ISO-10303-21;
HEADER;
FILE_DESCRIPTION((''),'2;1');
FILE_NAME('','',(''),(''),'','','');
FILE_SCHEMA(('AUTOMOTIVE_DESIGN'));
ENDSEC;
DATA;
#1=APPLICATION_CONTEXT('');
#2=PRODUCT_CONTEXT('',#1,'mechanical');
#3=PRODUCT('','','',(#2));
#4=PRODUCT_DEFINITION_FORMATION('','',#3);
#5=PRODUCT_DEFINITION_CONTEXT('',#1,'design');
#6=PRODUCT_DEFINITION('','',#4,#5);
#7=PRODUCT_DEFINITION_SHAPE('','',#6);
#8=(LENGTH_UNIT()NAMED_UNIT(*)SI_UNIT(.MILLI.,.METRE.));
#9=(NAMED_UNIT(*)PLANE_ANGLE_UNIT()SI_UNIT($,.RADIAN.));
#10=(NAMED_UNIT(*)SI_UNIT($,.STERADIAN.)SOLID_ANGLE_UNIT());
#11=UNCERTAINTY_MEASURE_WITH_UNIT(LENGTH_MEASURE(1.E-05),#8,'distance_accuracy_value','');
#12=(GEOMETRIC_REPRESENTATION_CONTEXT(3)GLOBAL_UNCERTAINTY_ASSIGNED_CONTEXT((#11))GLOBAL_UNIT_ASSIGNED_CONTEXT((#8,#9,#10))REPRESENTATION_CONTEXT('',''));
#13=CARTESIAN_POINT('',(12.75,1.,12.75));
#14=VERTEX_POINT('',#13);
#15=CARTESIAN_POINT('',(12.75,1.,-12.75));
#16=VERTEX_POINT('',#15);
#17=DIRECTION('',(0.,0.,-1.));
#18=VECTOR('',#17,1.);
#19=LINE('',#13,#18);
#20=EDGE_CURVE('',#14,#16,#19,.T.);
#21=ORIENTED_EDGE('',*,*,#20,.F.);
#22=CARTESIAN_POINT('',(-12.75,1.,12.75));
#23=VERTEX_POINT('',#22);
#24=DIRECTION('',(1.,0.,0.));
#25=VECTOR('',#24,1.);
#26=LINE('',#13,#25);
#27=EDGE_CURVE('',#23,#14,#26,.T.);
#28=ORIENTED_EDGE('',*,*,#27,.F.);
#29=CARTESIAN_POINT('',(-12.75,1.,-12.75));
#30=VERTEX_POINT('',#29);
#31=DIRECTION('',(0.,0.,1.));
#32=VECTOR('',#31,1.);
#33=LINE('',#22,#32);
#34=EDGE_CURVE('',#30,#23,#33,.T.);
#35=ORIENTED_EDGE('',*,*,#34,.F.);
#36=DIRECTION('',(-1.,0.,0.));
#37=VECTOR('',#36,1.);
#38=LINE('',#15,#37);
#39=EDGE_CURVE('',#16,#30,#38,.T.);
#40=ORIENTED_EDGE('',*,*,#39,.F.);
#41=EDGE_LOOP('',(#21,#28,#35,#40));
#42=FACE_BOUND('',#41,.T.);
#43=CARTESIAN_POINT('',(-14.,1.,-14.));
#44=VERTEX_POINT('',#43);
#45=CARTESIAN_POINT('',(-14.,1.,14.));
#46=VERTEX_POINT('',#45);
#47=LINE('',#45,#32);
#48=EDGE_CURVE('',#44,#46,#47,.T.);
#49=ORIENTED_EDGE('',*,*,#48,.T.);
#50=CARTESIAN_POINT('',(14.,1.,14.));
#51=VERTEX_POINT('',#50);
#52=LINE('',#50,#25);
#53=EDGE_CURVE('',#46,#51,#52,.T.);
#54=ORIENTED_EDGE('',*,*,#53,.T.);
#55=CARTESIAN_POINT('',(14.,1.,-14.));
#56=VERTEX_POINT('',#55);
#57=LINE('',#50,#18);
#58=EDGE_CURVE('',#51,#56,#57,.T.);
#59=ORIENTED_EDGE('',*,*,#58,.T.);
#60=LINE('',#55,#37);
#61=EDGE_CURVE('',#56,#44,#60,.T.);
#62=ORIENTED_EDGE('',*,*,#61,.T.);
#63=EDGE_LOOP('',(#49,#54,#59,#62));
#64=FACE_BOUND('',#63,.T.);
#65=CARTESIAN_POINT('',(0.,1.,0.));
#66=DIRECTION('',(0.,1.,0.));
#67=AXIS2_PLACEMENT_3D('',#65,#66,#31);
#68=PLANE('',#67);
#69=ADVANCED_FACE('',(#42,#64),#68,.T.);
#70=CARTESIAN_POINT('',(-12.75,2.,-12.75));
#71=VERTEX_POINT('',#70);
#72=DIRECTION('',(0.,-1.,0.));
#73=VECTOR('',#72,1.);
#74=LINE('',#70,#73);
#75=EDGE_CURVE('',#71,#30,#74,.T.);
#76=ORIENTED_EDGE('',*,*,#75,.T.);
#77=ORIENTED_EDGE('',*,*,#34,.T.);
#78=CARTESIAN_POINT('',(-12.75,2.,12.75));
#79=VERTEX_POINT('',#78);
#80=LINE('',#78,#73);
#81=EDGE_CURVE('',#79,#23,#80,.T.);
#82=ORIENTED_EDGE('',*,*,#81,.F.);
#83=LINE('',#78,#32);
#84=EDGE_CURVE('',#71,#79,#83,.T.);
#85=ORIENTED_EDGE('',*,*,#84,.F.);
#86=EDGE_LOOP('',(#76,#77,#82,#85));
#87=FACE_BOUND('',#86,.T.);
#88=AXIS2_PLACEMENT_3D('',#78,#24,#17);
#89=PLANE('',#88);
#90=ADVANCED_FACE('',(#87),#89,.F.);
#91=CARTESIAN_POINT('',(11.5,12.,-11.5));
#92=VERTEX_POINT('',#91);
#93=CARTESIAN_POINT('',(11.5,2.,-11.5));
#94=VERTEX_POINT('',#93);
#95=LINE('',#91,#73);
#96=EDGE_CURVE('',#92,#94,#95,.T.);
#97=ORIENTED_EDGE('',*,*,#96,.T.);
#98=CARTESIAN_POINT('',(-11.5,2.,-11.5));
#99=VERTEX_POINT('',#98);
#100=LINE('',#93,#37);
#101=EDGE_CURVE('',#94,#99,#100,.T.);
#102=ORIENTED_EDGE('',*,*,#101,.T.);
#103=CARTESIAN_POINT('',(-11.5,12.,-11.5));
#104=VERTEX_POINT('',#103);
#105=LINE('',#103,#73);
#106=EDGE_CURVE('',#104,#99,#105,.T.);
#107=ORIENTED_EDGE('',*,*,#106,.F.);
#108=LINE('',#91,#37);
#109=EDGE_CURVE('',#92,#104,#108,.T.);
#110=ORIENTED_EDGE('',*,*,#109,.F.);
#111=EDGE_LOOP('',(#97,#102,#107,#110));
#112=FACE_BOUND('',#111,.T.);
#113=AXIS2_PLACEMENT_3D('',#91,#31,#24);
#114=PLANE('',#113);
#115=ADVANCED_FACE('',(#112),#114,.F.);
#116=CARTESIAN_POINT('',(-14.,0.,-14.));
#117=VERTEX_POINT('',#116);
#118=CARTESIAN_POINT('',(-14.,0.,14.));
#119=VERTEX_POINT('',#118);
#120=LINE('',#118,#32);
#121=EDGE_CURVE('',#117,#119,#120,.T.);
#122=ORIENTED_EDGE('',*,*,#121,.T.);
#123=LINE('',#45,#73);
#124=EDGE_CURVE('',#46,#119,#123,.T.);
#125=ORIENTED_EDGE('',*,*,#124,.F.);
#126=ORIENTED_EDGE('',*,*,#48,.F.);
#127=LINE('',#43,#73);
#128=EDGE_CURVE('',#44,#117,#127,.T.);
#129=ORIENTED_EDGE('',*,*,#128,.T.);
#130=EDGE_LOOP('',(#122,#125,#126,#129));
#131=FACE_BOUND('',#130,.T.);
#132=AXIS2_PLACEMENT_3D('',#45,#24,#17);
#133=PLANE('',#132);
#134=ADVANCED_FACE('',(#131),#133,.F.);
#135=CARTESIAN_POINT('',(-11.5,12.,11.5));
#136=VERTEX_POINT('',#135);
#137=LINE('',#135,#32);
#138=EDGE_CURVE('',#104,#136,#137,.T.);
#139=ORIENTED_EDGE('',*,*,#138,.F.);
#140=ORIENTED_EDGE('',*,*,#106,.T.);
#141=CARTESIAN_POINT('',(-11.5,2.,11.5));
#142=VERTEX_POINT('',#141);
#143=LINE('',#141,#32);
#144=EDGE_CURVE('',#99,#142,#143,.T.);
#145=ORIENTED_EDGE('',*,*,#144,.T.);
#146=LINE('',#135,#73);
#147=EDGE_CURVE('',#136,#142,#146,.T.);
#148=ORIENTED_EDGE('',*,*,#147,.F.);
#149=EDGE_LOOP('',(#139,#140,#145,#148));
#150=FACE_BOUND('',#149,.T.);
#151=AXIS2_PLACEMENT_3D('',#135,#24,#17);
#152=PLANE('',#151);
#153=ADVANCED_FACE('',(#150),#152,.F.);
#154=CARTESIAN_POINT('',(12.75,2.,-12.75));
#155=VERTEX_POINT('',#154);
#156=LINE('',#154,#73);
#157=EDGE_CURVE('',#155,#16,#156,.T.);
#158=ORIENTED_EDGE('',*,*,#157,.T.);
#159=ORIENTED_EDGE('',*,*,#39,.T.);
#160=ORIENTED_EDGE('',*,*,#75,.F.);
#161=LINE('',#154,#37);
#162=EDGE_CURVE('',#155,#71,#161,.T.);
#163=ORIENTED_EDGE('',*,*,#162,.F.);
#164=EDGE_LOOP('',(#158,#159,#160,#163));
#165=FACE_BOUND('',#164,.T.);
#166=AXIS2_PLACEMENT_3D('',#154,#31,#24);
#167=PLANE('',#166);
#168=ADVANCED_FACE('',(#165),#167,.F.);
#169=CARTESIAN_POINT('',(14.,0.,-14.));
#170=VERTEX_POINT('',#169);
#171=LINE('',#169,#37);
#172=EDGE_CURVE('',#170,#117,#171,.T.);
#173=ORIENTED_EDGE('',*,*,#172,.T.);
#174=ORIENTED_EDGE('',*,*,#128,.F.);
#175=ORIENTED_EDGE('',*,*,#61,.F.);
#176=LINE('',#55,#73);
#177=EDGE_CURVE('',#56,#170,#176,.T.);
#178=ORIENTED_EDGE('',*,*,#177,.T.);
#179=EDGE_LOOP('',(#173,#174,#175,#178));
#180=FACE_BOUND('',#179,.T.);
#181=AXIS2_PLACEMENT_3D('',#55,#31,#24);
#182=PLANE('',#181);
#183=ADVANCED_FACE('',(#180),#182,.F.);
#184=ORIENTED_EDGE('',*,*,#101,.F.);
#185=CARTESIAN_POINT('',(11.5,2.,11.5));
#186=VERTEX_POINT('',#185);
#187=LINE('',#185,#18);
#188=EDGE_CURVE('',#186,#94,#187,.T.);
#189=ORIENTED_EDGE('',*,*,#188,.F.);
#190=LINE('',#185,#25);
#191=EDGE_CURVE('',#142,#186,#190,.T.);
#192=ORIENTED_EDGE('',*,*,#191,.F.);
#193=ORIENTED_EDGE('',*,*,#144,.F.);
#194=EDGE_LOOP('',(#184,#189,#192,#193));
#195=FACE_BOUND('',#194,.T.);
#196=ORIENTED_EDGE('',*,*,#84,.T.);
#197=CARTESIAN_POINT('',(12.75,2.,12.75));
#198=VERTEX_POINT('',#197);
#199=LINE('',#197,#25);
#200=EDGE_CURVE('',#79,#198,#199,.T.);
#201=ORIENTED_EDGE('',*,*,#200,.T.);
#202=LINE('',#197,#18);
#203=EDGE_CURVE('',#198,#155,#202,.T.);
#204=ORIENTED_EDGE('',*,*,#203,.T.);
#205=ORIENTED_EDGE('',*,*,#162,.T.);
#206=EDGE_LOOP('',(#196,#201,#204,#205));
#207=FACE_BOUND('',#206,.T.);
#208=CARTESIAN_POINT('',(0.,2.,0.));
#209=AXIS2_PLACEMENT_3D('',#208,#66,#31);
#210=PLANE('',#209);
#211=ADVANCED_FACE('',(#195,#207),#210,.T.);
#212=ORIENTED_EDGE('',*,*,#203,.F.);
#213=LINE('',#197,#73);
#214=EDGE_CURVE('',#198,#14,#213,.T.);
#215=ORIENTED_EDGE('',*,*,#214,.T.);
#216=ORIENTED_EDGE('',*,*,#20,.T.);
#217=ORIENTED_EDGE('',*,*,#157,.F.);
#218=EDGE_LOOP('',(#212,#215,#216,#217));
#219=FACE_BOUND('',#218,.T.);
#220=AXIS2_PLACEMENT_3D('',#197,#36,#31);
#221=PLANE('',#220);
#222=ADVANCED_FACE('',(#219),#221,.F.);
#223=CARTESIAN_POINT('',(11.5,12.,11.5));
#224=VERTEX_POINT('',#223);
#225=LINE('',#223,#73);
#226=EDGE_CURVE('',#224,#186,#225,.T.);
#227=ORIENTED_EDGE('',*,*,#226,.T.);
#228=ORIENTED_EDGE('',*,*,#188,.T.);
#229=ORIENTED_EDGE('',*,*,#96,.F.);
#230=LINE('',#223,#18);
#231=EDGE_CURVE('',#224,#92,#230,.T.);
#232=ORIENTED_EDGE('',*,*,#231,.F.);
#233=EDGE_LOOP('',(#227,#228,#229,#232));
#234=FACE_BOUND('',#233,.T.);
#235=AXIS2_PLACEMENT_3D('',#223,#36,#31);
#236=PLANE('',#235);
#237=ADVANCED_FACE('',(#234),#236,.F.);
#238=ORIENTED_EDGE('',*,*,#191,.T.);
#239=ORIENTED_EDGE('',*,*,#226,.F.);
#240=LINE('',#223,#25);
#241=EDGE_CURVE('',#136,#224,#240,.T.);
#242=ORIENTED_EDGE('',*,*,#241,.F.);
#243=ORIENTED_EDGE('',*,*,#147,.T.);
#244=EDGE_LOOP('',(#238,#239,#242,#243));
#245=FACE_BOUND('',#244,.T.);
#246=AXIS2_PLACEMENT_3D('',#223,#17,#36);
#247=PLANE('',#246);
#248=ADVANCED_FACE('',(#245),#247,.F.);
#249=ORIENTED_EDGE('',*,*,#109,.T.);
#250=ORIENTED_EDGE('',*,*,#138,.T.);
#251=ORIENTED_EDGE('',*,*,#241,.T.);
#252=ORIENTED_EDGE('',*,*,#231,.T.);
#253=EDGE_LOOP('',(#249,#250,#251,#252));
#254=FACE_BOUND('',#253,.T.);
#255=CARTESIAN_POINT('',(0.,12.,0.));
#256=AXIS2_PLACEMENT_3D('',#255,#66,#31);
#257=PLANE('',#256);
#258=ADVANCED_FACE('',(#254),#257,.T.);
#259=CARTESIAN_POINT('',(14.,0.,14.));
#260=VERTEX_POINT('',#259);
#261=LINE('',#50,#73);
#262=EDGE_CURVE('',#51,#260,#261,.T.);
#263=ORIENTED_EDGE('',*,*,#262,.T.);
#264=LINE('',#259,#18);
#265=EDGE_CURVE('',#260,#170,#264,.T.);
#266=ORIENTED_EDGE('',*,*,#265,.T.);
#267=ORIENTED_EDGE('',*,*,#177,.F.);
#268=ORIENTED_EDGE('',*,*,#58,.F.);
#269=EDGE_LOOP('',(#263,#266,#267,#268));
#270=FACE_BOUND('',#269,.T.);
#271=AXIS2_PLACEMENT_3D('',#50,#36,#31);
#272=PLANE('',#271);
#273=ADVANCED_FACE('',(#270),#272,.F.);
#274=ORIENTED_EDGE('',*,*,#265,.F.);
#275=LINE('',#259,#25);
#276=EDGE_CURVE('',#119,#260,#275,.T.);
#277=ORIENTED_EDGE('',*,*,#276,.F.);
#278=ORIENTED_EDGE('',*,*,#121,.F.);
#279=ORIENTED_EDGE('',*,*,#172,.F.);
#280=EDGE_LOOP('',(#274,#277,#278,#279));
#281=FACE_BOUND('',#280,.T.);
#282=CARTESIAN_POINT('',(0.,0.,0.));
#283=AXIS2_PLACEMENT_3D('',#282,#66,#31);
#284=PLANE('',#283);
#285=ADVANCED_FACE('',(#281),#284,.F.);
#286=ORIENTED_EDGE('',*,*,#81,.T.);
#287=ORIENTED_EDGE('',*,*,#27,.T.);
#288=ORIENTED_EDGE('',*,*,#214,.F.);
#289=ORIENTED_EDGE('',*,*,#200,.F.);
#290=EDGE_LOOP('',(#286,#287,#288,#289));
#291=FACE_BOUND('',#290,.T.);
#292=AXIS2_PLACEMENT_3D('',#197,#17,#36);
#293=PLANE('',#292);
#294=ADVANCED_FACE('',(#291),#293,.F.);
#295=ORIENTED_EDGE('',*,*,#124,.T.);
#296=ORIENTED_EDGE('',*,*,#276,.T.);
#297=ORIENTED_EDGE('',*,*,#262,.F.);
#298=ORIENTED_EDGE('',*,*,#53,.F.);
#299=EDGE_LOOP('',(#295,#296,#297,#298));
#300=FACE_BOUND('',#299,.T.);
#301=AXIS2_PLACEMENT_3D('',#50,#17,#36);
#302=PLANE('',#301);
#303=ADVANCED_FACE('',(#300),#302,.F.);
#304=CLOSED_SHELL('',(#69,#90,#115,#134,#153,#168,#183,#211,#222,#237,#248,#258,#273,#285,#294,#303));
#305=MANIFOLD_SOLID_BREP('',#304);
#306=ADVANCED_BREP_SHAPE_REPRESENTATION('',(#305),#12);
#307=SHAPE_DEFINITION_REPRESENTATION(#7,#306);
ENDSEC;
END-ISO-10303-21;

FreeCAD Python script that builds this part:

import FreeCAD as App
import Part
import Sketcher
from FreeCAD import Vector

doc = App.newDocument("Part")
body = doc.addObject("PartDesign::Body", "Body")

sketch1 = body.newObject("Sketcher::SketchObject", "Sketch")
sketch1.AttachmentSupport = (doc.getObject("XZ_Plane"), [""])
sketch1.MapMode = "FlatFace"
sketch1.addGeometry(Part.LineSegment(Vector(-14, -14, 0), Vector(-14, 14, 0)), False)
sketch1.addGeometry(Part.LineSegment(Vector(-14, 14, 0), Vector(14, 14, 0)), False)
sketch1.addGeometry(Part.LineSegment(Vector(14, 14, 0), Vector(14, -14, 0)), False)
sketch1.addGeometry(Part.LineSegment(Vector(14, -14, 0), Vector(-14, -14, 0)), False)
sketch1.addConstraint(Sketcher.Constraint("Coincident", 0, 2, 1, 1))
sketch1.addConstraint(Sketcher.Constraint("Coincident", 1, 2, 2, 1))
sketch1.addConstraint(Sketcher.Constraint("Coincident", 2, 2, 3, 1))
sketch1.addConstraint(Sketcher.Constraint("Coincident", 3, 2, 0, 1))
sketch1.addConstraint(Sketcher.Constraint("Vertical", 0))
sketch1.addConstraint(Sketcher.Constraint("Horizontal", 1))
sketch1.addConstraint(Sketcher.Constraint("Vertical", 2))
sketch1.addConstraint(Sketcher.Constraint("Horizontal", 3))
sketch1.addConstraint(Sketcher.Constraint("Symmetric", 0, 2, 2, 2, -1, 1))
sketch1.addConstraint(Sketcher.Constraint("Equal", 3, 0))
sketch1.addConstraint(Sketcher.Constraint("DistanceX", 1, 1, 1, 2, 28.0))
pad1 = body.newObject("PartDesign::Pad", "Pad")
pad1.Profile = sketch1
pad1.Length = 1
pad1.Reversed = True

sketch2 = body.newObject("Sketcher::SketchObject", "Sketch001")
sketch2.AttachmentSupport = (doc.getObject("XZ_Plane"), [""])
sketch2.MapMode = "FlatFace"
sketch2.AttachmentOffset = App.Placement(Vector(0, 0, -1), App.Rotation())
sketch2.addGeometry(Part.LineSegment(Vector(-12.75, -12.75, 0), Vector(-12.75, 12.75, 0)), False)
sketch2.addGeometry(Part.LineSegment(Vector(-12.75, 12.75, 0), Vector(12.75, 12.75, 0)), False)
sketch2.addGeometry(Part.LineSegment(Vector(12.75, 12.75, 0), Vector(12.75, -12.75, 0)), False)
sketch2.addGeometry(Part.LineSegment(Vector(12.75, -12.75, 0), Vector(-12.75, -12.75, 0)), False)
sketch2.addConstraint(Sketcher.Constraint("Coincident", 0, 2, 1, 1))
sketch2.addConstraint(Sketcher.Constraint("Coincident", 1, 2, 2, 1))
sketch2.addConstraint(Sketcher.Constraint("Coincident", 2, 2, 3, 1))
sketch2.addConstraint(Sketcher.Constraint("Coincident", 3, 2, 0, 1))
sketch2.addConstraint(Sketcher.Constraint("Vertical", 0))
sketch2.addConstraint(Sketcher.Constraint("Horizontal", 1))
sketch2.addConstraint(Sketcher.Constraint("Vertical", 2))
sketch2.addConstraint(Sketcher.Constraint("Horizontal", 3))
sketch2.addConstraint(Sketcher.Constraint("Symmetric", 0, 2, 2, 2, -1, 1))
sketch2.addConstraint(Sketcher.Constraint("Equal", 3, 0))
sketch2.addConstraint(Sketcher.Constraint("DistanceX", 1, 1, 1, 2, 25.5))
pad2 = body.newObject("PartDesign::Pad", "Pad001")
pad2.Profile = sketch2
pad2.Length = 1
pad2.Reversed = True

sketch3 = body.newObject("Sketcher::SketchObject", "Sketch002")
sketch3.AttachmentSupport = (doc.getObject("XZ_Plane"), [""])
sketch3.MapMode = "FlatFace"
sketch3.AttachmentOffset = App.Placement(Vector(0, 0, -2), App.Rotation())
sketch3.addGeometry(Part.LineSegment(Vector(-11.5, -11.5, 0), Vector(-11.5, 11.5, 0)), False)
sketch3.addGeometry(Part.LineSegment(Vector(-11.5, 11.5, 0), Vector(11.5, 11.5, 0)), False)
sketch3.addGeometry(Part.LineSegment(Vector(11.5, 11.5, 0), Vector(11.5, -11.5, 0)), False)
sketch3.addGeometry(Part.LineSegment(Vector(11.5, -11.5, 0), Vector(-11.5, -11.5, 0)), False)
sketch3.addConstraint(Sketcher.Constraint("Coincident", 0, 2, 1, 1))
sketch3.addConstraint(Sketcher.Constraint("Coincident", 1, 2, 2, 1))
sketch3.addConstraint(Sketcher.Constraint("Coincident", 2, 2, 3, 1))
sketch3.addConstraint(Sketcher.Constraint("Coincident", 3, 2, 0, 1))
sketch3.addConstraint(Sketcher.Constraint("Vertical", 0))
sketch3.addConstraint(Sketcher.Constraint("Horizontal", 1))
sketch3.addConstraint(Sketcher.Constraint("Vertical", 2))
sketch3.addConstraint(Sketcher.Constraint("Horizontal", 3))
sketch3.addConstraint(Sketcher.Constraint("Symmetric", 0, 2, 2, 2, -1, 1))
sketch3.addConstraint(Sketcher.Constraint("Equal", 3, 0))
sketch3.addConstraint(Sketcher.Constraint("DistanceX", 1, 1, 1, 2, 23.0))
pad3 = body.newObject("PartDesign::Pad", "Pad002")
pad3.Profile = sketch3
pad3.Length = 10
pad3.Reversed = True

doc.recompute()
